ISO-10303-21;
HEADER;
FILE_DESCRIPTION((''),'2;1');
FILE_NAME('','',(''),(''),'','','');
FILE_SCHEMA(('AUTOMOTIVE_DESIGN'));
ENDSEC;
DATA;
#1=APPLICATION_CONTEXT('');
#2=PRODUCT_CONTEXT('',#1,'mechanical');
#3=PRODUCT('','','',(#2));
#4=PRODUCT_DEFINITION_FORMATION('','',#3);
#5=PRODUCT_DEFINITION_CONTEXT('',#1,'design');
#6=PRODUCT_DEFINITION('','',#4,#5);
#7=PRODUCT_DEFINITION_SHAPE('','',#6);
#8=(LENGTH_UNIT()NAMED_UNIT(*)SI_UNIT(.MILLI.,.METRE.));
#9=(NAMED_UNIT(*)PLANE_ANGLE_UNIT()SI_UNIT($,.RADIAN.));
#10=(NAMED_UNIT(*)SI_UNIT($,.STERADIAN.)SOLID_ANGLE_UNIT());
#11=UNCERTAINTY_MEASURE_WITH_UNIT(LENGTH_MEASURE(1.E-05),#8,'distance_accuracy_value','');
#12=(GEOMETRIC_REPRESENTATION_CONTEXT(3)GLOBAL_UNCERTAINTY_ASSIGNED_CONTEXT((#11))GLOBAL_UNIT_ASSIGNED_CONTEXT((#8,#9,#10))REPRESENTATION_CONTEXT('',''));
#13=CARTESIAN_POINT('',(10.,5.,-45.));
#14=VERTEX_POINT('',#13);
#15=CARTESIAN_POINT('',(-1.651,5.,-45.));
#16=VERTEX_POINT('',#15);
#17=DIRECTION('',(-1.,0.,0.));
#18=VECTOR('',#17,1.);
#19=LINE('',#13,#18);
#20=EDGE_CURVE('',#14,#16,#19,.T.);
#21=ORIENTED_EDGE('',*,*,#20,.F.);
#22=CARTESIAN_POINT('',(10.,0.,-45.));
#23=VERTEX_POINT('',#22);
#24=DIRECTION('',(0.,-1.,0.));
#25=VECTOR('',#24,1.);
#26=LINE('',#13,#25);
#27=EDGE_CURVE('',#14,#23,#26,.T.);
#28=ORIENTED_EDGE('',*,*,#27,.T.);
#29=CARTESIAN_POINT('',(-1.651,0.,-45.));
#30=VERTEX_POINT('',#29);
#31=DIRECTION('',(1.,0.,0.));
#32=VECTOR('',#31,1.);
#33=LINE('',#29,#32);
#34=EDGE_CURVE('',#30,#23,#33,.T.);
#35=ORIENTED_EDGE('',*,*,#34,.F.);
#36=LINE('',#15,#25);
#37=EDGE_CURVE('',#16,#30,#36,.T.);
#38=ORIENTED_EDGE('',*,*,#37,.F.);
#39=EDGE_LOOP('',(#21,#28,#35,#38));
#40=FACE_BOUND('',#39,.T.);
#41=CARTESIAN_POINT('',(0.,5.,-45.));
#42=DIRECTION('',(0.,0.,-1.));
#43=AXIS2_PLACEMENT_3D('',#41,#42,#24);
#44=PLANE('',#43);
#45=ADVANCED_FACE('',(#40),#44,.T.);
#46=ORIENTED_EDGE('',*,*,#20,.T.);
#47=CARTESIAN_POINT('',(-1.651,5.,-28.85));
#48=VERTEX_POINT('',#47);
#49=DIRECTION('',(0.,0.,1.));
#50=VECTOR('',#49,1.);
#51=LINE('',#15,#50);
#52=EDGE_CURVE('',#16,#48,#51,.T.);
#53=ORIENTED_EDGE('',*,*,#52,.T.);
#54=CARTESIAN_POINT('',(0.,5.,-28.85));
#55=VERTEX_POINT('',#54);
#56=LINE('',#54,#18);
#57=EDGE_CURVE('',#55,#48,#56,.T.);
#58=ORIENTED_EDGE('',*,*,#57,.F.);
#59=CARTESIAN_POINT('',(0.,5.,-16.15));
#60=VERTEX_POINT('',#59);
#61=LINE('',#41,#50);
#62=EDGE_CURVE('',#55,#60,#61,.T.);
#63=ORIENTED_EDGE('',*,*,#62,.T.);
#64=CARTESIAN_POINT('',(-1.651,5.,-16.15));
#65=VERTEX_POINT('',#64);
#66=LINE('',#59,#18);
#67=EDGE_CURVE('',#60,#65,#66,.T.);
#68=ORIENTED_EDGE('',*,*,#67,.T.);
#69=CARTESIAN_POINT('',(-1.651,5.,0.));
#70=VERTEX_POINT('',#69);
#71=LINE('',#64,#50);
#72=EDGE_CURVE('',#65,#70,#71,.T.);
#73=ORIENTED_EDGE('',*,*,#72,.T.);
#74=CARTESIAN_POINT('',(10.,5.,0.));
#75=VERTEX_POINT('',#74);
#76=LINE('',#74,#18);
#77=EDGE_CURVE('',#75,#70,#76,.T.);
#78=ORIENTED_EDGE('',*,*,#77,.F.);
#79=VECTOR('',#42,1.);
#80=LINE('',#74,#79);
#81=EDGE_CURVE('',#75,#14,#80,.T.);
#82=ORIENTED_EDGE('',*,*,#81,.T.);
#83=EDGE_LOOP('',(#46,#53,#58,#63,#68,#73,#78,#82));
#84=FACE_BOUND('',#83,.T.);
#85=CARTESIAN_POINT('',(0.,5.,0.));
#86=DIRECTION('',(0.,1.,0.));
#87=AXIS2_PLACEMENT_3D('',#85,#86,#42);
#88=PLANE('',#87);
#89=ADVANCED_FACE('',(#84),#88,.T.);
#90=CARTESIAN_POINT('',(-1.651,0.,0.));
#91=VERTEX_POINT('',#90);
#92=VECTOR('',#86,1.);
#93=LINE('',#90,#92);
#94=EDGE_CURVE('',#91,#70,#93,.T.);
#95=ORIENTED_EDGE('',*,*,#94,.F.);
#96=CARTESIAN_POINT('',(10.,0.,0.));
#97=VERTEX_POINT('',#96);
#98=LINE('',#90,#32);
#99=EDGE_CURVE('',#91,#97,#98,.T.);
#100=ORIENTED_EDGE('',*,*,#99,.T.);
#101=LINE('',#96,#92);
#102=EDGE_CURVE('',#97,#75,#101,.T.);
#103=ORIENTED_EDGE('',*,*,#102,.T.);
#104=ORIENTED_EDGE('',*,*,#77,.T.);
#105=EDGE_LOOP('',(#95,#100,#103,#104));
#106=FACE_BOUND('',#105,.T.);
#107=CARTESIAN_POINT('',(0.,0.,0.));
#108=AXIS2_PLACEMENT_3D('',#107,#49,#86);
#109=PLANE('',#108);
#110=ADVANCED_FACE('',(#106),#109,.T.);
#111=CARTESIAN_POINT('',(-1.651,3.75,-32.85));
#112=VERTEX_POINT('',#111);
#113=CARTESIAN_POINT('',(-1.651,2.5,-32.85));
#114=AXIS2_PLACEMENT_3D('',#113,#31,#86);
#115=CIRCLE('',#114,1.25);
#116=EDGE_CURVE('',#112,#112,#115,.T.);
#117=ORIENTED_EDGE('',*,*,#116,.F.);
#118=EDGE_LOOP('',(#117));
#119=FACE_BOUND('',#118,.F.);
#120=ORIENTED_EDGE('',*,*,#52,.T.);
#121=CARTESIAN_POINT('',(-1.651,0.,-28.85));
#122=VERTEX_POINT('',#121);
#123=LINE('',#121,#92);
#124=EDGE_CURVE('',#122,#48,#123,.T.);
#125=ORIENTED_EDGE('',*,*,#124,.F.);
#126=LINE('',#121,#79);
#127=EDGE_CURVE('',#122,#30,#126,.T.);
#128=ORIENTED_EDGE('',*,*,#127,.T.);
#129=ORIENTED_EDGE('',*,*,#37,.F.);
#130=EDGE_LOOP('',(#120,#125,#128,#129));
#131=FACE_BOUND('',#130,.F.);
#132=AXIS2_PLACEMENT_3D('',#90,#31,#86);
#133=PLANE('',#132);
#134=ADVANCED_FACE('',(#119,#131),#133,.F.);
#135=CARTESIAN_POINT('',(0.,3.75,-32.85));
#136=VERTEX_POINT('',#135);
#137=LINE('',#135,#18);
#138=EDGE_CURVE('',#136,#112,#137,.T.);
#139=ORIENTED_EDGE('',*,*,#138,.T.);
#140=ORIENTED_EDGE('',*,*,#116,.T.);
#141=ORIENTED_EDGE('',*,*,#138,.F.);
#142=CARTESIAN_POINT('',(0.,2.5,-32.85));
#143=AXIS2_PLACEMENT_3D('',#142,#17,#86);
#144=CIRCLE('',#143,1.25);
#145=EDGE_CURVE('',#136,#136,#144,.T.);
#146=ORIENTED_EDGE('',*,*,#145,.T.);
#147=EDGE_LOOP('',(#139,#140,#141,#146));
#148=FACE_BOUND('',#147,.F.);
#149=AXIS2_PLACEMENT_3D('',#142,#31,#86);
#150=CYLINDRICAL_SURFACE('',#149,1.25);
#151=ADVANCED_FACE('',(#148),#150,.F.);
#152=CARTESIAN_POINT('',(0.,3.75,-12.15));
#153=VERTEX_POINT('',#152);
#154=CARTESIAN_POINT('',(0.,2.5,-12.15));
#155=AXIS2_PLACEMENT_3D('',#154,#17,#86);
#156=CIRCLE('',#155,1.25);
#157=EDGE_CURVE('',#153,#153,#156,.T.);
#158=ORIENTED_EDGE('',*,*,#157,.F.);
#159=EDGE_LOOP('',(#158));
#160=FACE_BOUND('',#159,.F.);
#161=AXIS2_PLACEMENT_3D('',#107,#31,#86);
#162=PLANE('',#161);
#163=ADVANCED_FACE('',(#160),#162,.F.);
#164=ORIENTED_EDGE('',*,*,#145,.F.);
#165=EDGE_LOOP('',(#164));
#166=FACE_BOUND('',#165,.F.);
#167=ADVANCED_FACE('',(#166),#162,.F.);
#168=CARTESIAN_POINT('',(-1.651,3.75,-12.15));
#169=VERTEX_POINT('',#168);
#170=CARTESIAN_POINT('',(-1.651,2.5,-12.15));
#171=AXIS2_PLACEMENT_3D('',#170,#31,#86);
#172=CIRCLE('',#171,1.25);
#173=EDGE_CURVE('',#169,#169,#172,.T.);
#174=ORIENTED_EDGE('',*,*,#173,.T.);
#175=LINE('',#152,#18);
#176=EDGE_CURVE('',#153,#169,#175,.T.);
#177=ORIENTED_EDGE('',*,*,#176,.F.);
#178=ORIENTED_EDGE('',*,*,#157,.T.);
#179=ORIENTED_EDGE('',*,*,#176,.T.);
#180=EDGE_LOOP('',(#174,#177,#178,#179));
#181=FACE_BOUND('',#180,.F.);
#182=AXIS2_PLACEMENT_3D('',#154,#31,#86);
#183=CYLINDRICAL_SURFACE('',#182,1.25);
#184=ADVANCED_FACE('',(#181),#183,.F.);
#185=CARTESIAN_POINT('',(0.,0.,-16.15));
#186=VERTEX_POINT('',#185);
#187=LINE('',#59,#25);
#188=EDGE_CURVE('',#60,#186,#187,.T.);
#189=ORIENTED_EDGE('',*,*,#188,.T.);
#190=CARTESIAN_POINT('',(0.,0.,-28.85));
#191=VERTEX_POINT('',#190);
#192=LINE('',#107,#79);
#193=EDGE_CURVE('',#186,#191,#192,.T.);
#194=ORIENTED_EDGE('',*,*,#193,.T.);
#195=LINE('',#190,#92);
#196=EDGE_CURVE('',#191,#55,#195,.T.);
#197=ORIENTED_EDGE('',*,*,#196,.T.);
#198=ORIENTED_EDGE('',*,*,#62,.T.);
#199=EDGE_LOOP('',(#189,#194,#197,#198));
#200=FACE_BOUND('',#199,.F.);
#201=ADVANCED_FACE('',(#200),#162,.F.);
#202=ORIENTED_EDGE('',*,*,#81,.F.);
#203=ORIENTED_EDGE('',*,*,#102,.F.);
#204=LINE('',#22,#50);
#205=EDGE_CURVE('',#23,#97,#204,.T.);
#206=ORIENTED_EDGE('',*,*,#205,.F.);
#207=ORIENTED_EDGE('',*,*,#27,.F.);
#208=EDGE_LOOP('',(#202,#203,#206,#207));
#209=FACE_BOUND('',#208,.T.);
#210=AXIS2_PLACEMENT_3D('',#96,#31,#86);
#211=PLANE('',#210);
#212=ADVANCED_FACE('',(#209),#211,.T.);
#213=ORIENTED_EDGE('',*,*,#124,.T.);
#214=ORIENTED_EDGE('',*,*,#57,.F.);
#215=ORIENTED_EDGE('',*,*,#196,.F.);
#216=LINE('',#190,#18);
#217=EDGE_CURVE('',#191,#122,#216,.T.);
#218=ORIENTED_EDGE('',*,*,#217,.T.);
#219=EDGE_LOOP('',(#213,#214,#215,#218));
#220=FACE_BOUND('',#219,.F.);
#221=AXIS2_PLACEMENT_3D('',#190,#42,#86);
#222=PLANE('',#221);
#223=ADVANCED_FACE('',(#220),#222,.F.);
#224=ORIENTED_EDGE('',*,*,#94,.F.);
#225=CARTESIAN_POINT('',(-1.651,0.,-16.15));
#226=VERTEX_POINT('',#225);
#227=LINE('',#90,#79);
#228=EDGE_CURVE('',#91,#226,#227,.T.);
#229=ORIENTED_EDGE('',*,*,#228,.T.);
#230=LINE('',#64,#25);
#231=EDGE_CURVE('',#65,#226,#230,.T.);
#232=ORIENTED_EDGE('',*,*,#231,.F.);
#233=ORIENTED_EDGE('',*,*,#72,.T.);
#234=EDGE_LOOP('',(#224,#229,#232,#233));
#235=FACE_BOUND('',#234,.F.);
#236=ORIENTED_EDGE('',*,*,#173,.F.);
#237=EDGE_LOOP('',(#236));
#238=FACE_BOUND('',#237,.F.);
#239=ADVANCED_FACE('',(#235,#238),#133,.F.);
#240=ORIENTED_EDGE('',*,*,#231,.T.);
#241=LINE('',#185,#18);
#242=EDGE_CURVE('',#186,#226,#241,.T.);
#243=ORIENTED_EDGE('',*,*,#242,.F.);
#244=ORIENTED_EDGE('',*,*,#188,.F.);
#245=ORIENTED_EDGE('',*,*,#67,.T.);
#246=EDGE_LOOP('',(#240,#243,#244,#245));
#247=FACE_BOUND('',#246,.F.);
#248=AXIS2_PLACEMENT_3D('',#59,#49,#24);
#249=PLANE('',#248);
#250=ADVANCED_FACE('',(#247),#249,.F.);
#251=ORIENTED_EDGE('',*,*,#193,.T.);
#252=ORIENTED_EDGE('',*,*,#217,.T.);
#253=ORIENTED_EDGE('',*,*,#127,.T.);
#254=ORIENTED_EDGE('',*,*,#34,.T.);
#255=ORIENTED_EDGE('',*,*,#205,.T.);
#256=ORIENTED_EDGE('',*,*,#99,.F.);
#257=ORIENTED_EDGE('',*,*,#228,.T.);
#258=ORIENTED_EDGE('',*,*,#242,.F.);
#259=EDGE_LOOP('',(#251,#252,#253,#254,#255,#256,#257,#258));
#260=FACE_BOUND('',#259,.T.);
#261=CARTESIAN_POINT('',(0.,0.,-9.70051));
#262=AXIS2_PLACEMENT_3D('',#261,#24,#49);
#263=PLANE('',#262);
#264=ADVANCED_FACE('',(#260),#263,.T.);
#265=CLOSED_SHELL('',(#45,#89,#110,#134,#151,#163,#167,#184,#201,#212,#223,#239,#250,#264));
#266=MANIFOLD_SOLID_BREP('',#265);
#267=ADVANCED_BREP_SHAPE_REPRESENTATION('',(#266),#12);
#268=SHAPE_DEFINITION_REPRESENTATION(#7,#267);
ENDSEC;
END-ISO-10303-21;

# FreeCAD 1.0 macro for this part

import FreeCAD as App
import Part
import Sketcher
from FreeCAD import Vector


def add_polygon(sketch, points):
    """Adds a closed chain of lines whose ends are joined by coincident constraints."""
    first, n = sketch.GeometryCount, len(points)
    for a, b in zip(points, points[1:] + points[:1]):
        sketch.addGeometry(Part.LineSegment(App.Vector(*a, 0), App.Vector(*b, 0)), False)
    for i in range(n):
        sketch.addConstraint(Sketcher.Constraint("Coincident", first + i, 2, first + (i + 1) % n, 1))

doc = App.newDocument("Part")
body = doc.addObject("PartDesign::Body", "Body")

# Sketch on YZ plane
sketch1 = body.newObject("Sketcher::SketchObject", "Sketch")
sketch1.AttachmentSupport = (doc.getObject("YZ_Plane"), [""])
sketch1.MapMode = "FlatFace"
add_polygon(sketch1, [(5, 0), (0, 0), (0, -45), (5, -45)])  # lines 0-3
sketch1.addConstraint([
    Sketcher.Constraint("Horizontal", 0),
    Sketcher.Constraint("Vertical", 1),
    Sketcher.Constraint("Horizontal", 2),
    Sketcher.Constraint("Vertical", 3),
    Sketcher.Constraint("Coincident", 0, 2, -1, 1),
    Sketcher.Constraint("DistanceX", 0, 2, 0, 1, 5.0),
    Sketcher.Constraint("DistanceY", 1, 2, 1, 1, 45.0),
])
pad1 = body.newObject("PartDesign::Pad", "Pad")
pad1.Profile = sketch1
pad1.Length = 10

# Sketch on YZ plane
sketch2 = body.newObject("Sketcher::SketchObject", "Sketch001")
sketch2.AttachmentSupport = (doc.getObject("YZ_Plane"), [""])
sketch2.MapMode = "FlatFace"
add_polygon(sketch2, [(5, 0), (0, 0), (0, -16.15), (5, -16.15)])  # lines 0-3
sketch2.addGeometry(Part.Circle(Vector(2.5, -12.15, 0), Vector(0, 0, 1), 1.25), False)  # 4
add_polygon(sketch2, [(5, -28.85), (0, -28.85), (0, -45), (5, -45)])  # lines 5-8
sketch2.addGeometry(Part.Circle(Vector(2.5, -32.85, 0), Vector(0, 0, 1), 1.25), False)  # 9
sketch2.addConstraint([
    Sketcher.Constraint("Horizontal", 0),
    Sketcher.Constraint("Vertical", 1),
    Sketcher.Constraint("Horizontal", 2),
    Sketcher.Constraint("Vertical", 3),
    Sketcher.Constraint("Horizontal", 5),
    Sketcher.Constraint("Vertical", 6),
    Sketcher.Constraint("Horizontal", 7),
    Sketcher.Constraint("Vertical", 8),
    Sketcher.Constraint("Coincident", 0, 2, -1, 1),
    Sketcher.Constraint("Equal", 4, 9),
    Sketcher.Constraint("PointOnObject", 5, 2, -2),
    Sketcher.Constraint("Vertical", 4, 3, 9, 3),
    Sketcher.Constraint("Vertical", 3, 2, 7, 2),
    Sketcher.Constraint("Equal", 3, 6),
    Sketcher.Constraint("Diameter", 4, 2.5),
    Sketcher.Constraint("DistanceX", 0, 2, 0, 1, 5.0),
    Sketcher.Constraint("DistanceY", 6, 2, -1, 1, 45.0),
    Sketcher.Constraint("DistanceX", -1, 1, 4, 3, 2.5),
    Sketcher.Constraint("DistanceY", 5, 2, 1, 2, 12.7),
    Sketcher.Constraint("DistanceY", 4, 3, -1, 1, 12.15),
    Sketcher.Constraint("DistanceY", 6, 2, 9, 3, 12.15),
])
pad2 = body.newObject("PartDesign::Pad", "Pad001")
pad2.Profile = sketch2
pad2.Length = 1.651
pad2.Reversed = True

doc.recompute()
